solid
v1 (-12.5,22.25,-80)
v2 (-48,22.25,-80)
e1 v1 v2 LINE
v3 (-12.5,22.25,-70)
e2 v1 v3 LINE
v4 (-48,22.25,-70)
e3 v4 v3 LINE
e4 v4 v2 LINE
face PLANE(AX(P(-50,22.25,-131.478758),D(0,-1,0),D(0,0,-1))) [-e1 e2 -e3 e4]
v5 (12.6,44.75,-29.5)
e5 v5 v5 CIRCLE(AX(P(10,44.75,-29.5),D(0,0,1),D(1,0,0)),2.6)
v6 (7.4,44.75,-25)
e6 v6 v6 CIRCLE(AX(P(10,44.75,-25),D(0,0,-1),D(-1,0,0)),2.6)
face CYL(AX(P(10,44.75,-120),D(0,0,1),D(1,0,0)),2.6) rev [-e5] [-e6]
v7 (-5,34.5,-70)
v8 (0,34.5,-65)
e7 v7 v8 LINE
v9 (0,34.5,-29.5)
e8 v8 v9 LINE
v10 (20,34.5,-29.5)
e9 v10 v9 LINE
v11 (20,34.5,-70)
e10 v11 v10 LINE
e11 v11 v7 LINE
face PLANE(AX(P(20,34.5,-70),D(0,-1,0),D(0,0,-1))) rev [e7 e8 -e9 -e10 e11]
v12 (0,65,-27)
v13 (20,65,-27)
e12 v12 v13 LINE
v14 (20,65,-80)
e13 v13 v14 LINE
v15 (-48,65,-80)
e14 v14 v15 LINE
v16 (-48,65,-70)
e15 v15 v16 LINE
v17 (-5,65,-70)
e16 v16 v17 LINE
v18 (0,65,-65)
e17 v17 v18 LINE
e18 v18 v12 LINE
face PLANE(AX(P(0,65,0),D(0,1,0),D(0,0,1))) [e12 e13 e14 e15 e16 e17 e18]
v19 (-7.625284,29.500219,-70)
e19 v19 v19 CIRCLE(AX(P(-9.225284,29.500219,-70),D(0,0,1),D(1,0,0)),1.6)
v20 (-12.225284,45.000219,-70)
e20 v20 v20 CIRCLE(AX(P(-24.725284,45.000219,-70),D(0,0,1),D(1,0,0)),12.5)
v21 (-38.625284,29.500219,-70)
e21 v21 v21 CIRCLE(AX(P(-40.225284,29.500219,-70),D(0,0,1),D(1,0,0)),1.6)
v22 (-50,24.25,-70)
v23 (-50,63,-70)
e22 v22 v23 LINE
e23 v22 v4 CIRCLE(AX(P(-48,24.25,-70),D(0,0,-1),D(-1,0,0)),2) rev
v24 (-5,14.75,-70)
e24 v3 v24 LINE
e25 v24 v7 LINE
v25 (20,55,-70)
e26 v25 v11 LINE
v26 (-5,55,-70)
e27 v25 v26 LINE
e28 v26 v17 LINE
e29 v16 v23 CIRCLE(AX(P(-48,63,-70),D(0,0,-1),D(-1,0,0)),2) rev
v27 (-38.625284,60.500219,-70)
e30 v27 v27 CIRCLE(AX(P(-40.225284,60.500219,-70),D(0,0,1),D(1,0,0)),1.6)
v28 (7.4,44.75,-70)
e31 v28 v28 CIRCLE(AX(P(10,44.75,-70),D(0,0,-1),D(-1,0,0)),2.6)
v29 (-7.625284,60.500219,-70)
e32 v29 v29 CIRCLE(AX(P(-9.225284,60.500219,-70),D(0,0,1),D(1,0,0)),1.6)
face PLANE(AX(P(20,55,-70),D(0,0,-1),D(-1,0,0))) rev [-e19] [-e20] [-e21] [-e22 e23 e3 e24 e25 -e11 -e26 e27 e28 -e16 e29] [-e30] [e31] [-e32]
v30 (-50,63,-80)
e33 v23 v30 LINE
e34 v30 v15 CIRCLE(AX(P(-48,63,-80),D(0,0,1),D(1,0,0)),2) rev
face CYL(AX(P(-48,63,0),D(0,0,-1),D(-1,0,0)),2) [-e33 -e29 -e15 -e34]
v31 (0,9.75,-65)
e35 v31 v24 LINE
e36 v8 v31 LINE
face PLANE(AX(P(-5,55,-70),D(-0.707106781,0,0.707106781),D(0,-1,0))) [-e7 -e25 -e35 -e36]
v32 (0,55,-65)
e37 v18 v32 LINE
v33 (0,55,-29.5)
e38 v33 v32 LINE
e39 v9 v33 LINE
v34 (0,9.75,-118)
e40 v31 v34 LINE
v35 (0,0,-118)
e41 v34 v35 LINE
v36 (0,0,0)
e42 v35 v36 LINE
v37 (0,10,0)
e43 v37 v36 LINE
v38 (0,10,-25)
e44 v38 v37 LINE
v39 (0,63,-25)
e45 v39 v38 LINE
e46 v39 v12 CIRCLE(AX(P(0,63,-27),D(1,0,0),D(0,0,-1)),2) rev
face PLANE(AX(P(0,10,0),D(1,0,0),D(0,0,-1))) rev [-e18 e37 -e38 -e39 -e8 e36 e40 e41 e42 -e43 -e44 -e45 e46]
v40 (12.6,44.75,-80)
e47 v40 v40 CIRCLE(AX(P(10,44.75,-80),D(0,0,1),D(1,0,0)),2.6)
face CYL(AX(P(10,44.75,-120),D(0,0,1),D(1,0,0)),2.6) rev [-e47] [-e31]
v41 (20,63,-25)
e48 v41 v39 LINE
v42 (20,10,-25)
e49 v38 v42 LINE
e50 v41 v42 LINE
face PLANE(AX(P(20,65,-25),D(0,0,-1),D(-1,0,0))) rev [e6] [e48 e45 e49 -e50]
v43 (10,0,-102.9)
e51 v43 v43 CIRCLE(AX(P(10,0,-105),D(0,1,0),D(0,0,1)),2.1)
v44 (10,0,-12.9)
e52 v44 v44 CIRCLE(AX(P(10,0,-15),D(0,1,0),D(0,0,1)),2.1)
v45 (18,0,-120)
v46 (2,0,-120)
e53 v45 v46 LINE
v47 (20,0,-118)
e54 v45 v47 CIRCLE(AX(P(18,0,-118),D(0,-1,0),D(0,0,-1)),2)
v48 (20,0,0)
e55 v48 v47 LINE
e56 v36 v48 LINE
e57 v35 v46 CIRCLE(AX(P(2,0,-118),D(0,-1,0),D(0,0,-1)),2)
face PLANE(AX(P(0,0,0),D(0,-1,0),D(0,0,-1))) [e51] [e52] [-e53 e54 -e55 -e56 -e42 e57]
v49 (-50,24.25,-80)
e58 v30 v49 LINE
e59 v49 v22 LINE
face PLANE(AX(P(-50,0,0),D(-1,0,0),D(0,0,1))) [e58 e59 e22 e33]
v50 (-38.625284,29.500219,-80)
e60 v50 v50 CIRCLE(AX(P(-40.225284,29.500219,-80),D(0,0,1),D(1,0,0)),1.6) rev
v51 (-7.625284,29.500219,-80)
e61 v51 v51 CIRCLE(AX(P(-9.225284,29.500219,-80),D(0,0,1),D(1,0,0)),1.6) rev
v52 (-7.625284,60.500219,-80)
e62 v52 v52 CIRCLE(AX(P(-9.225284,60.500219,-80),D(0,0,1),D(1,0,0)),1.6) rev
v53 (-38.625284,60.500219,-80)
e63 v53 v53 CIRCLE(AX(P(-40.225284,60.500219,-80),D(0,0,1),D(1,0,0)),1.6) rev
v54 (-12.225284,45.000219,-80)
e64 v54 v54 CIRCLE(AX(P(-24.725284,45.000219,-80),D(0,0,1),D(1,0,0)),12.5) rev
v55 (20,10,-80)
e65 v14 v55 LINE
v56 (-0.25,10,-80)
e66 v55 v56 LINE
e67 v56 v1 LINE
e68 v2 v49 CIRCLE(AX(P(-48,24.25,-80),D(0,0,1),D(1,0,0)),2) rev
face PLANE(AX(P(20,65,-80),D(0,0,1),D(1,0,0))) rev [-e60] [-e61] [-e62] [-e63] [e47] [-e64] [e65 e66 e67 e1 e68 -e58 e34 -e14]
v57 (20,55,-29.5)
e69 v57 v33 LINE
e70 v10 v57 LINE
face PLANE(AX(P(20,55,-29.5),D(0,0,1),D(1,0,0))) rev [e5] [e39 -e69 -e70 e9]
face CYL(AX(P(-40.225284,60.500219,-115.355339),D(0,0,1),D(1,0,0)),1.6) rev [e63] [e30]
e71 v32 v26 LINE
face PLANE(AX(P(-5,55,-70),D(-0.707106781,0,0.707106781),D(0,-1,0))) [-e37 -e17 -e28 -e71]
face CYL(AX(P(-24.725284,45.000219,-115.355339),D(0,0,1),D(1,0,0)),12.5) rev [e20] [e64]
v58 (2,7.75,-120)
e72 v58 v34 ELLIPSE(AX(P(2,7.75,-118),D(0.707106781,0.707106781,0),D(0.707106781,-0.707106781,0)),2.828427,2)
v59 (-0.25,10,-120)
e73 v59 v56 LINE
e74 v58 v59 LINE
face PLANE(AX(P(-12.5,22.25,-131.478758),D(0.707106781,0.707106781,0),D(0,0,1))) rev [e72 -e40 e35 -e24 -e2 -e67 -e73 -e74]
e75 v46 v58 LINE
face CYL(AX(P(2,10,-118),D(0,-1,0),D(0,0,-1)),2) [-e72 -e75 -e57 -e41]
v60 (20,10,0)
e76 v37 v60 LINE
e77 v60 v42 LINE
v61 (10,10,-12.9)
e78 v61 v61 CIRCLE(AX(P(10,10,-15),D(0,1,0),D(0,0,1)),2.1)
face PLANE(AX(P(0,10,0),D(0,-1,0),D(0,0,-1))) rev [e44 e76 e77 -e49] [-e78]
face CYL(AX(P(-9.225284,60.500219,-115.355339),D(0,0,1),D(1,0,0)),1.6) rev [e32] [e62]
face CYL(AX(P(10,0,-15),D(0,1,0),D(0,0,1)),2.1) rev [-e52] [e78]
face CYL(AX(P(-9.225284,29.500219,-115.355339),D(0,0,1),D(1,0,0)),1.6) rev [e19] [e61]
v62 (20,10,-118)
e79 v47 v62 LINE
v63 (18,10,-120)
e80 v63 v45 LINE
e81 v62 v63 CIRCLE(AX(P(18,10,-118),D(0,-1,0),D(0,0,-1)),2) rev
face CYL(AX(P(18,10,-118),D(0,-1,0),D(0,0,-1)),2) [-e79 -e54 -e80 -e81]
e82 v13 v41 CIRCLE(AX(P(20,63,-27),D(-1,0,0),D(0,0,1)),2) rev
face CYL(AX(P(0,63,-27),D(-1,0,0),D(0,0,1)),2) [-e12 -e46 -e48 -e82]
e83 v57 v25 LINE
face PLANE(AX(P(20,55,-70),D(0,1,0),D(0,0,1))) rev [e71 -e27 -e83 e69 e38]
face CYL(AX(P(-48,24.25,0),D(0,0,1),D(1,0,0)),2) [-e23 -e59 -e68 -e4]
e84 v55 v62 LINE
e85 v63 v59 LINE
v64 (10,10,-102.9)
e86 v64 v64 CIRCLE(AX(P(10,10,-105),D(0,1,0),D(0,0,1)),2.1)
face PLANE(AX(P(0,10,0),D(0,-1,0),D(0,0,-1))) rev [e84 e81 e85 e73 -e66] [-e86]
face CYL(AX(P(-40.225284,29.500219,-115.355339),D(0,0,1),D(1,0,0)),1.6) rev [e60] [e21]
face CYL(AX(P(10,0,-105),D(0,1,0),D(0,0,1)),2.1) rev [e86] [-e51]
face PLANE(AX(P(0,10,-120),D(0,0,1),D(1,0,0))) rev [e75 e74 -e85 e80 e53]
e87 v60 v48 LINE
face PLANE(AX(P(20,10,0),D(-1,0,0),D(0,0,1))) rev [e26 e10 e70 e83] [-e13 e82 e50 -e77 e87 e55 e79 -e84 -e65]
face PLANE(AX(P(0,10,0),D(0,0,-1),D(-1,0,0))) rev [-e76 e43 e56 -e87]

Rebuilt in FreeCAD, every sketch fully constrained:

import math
import FreeCAD as App
import Part
import Sketcher

V = App.Vector


def edges_at(feature, points):
    """Names of the edges that pass closest to the given points."""
    edges = feature.Shape.Edges
    near = lambda p: min(range(len(edges)), key=lambda i: edges[i].distToShape(Part.Vertex(*p))[0])
    return sorted({f"Edge{near(p) + 1}" for p in points})


def add_polygon(sketch, points):
    """Adds a closed chain of lines whose ends are joined by coincident constraints."""
    first, n = sketch.GeometryCount, len(points)
    for a, b in zip(points, points[1:] + points[:1]):
        sketch.addGeometry(Part.LineSegment(App.Vector(*a, 0), App.Vector(*b, 0)), False)
    for i in range(n):
        sketch.addConstraint(Sketcher.Constraint("Coincident", first + i, 2, first + (i + 1) % n, 1))

doc = App.newDocument("Part")
body = doc.addObject("PartDesign::Body", "Body")

# Sketch on XZ plane
sketch1 = body.newObject("Sketcher::SketchObject", "Sketch")
sketch1.AttachmentSupport = (doc.getObject("XZ_Plane"), [""])
sketch1.MapMode = "FlatFace"
add_polygon(sketch1, [(0, -120), (0, 0), (20, 0), (20, -120)])  # lines 0-3
sketch1.addConstraint([
    Sketcher.Constraint("Vertical", 0),
    Sketcher.Constraint("Horizontal", 1),
    Sketcher.Constraint("Vertical", 2),
    Sketcher.Constraint("Horizontal", 3),
    Sketcher.Constraint("Coincident", 0, 2, -1, 1),
    Sketcher.Constraint("DistanceX", 1, 1, 1, 2, 20.0),
    Sketcher.Constraint("DistanceY", 0, 1, 0, 2, 120.0),
])
pad1 = body.newObject("PartDesign::Pad", "Pad")
pad1.Profile = sketch1
pad1.Length = 10
pad1.Reversed = True

# Sketch on XZ plane
sketch2 = body.newObject("Sketcher::SketchObject", "Sketch001")
sketch2.AttachmentSupport = (doc.getObject("XZ_Plane"), [""])
sketch2.MapMode = "FlatFace"
sketch2.AttachmentOffset = App.Placement(V(0, 0, -10), App.Rotation())
sketch2.addGeometry([
    Part.Circle(V(10, -105, 0), V(0, 0, 1), 2.1),
    Part.Circle(V(10, -15, 0), V(0, 0, 1), 2.1),
], False)
sketch2.addConstraint([
    Sketcher.Constraint("Equal", 0, 1),
    Sketcher.Constraint("Vertical", 0, 3, 1, 3),
    Sketcher.Constraint("Diameter", 0, 4.2),
    Sketcher.Constraint("DistanceX", -1, 1, 0, 3, 10.0),
    Sketcher.Constraint("DistanceY", 0, 3, -1, 1, 105.0),
    Sketcher.Constraint("DistanceY", 1, 3, -1, 1, 15.0),
])
pocket1 = body.newObject("PartDesign::Pocket", "Pocket")
pocket1.Profile = sketch2
pocket1.Length = 10
pocket1.Reversed = True

# Sketch on XZ plane
sketch3 = body.newObject("Sketcher::SketchObject", "Sketch002")
sketch3.AttachmentSupport = (doc.getObject("XZ_Plane"), [""])
sketch3.MapMode = "FlatFace"
sketch3.AttachmentOffset = App.Placement(V(0, 0, -10), App.Rotation())
add_polygon(sketch3, [(0, -80), (0, -25), (20, -25), (20, -80)])  # lines 0-3
sketch3.addConstraint([
    Sketcher.Constraint("Vertical", 0),
    Sketcher.Constraint("Horizontal", 1),
    Sketcher.Constraint("Vertical", 2),
    Sketcher.Constraint("Horizontal", 3),
    Sketcher.Constraint("PointOnObject", 0, 2, -2),
    Sketcher.Constraint("DistanceX", 1, 1, 1, 2, 20.0),
    Sketcher.Constraint("DistanceY", 0, 1, 0, 2, 55.0),
    Sketcher.Constraint("DistanceY", 0, 2, -1, 1, 25.0),
])
pad2 = body.newObject("PartDesign::Pad", "Pad001")
pad2.Profile = sketch3
pad2.Length = 55
pad2.Reversed = True

# Sketch on YZ plane
sketch4 = body.newObject("Sketcher::SketchObject", "Sketch003")
sketch4.AttachmentSupport = (doc.getObject("YZ_Plane"), [""])
sketch4.MapMode = "FlatFace"
add_polygon(sketch4, [(55, -70), (34, -70), (34, -30), (55, -30)])  # lines 0-3
sketch4.addConstraint([
    Sketcher.Constraint("Horizontal", 0),
    Sketcher.Constraint("Vertical", 1),
    Sketcher.Constraint("Horizontal", 2),
    Sketcher.Constraint("Vertical", 3),
    Sketcher.Constraint("DistanceX", 0, 2, 0, 1, 20.5),
    Sketcher.Constraint("DistanceY", 1, 1, 1, 2, 40.5),
    Sketcher.Constraint("DistanceY", 0, 2, -1, 1, 70.0),
    Sketcher.Constraint("DistanceX", -1, 1, 2, 2, 55.0),
])
pocket2 = body.newObject("PartDesign::Pocket", "Pocket001")
pocket2.Profile = sketch4
pocket2.Length = 20
pocket2.Reversed = True

# Sketch on XY plane
sketch5 = body.newObject("Sketcher::SketchObject", "Sketch004")
sketch5.AttachmentSupport = (doc.getObject("XY_Plane"), [""])
sketch5.MapMode = "FlatFace"
sketch5.AttachmentOffset = App.Placement(V(0, 0, -70), App.Rotation())
sketch5.addGeometry(Part.Circle(V(10, 44.8, 0), V(0, 0, 1), 2.6), False)
sketch5.addConstraint([
    Sketcher.Constraint("Diameter", 0, 5.2),
    Sketcher.Constraint("DistanceX", -1, 1, 0, 3, 10.0),
    Sketcher.Constraint("DistanceY", -1, 1, 0, 3, 44.75),
])
pocket3 = body.newObject("PartDesign::Pocket", "Pocket002")
pocket3.Profile = sketch5
pocket3.Length = 100
pocket3.Midplane = True

# Sketch on YZ plane
sketch6 = body.newObject("Sketcher::SketchObject", "Sketch005")
sketch6.AttachmentSupport = (doc.getObject("YZ_Plane"), [""])
sketch6.MapMode = "FlatFace"
add_polygon(sketch6, [(65, -80), (10, -80), (10, -70), (65, -70)])  # lines 0-3
sketch6.addConstraint([
    Sketcher.Constraint("Horizontal", 0),
    Sketcher.Constraint("Vertical", 1),
    Sketcher.Constraint("Horizontal", 2),
    Sketcher.Constraint("Vertical", 3),
    Sketcher.Constraint("DistanceX", 0, 2, 0, 1, 55.0),
    Sketcher.Constraint("DistanceY", 1, 1, 1, 2, 10.0),
    Sketcher.Constraint("DistanceX", -1, 1, 0, 2, 10.0),
    Sketcher.Constraint("DistanceY", 0, 2, -1, 1, 80.0),
])
pad3 = body.newObject("PartDesign::Pad", "Pad002")
pad3.Profile = sketch6
pad3.Length = 50
pad3.Reversed = True

# Sketch on XY plane
sketch7 = body.newObject("Sketcher::SketchObject", "Sketch006")
sketch7.AttachmentSupport = (doc.getObject("XY_Plane"), [""])
sketch7.MapMode = "FlatFace"
sketch7.AttachmentOffset = App.Placement(V(0, 0, -70), App.Rotation())
sketch7.addGeometry([
    Part.Circle(V(-24.7, 45, 0), V(0, 0, 1), 12.5),  # 0
    Part.ArcOfCircle(Part.Circle(V(-9.2, 60.5, 0), V(0, 0, 1), 1.6), math.radians(0), math.radians(180)),  # 1
    Part.ArcOfCircle(Part.Circle(V(-9.2, 60.5, 0), V(0, 0, 1), 1.6), math.radians(180), math.radians(270)),  # 2
    Part.ArcOfCircle(Part.Circle(V(-9.2, 60.5, 0), V(0, 0, 1), 1.6), math.radians(-90), math.radians(0)),  # 3
    Part.ArcOfCircle(Part.Circle(V(-9.2, 29.5, 0), V(0, 0, 1), 1.6), math.radians(0), math.radians(90)),  # 4
    Part.ArcOfCircle(Part.Circle(V(-9.2, 29.5, 0), V(0, 0, 1), 1.6), math.radians(90), math.radians(180)),  # 5
    Part.ArcOfCircle(Part.Circle(V(-9.2, 29.5, 0), V(0, 0, 1), 1.6), math.radians(180), math.radians(360)),  # 6
    Part.ArcOfCircle(Part.Circle(V(-40.2, 29.5, 0), V(0, 0, 1), 1.6), math.radians(0), math.radians(90)),  # 7
    Part.ArcOfCircle(Part.Circle(V(-40.2, 29.5, 0), V(0, 0, 1), 1.6), math.radians(90), math.radians(360)),  # 8
    Part.ArcOfCircle(Part.Circle(V(-40.2, 60.5, 0), V(0, 0, 1), 1.6), math.radians(0), math.radians(270)),  # 9
    Part.ArcOfCircle(Part.Circle(V(-40.2, 60.5, 0), V(0, 0, 1), 1.6), math.radians(-90), math.radians(0)),  # 10
], False)
sketch7.addConstraint([
    Sketcher.Constraint("Tangent", 1, 2, 2, 1),
    Sketcher.Constraint("Tangent", 2, 2, 3, 1),
    Sketcher.Constraint("Tangent", 3, 2, 1, 1),
    Sketcher.Constraint("Tangent", 4, 2, 5, 1),
    Sketcher.Constraint("Tangent", 5, 2, 6, 1),
    Sketcher.Constraint("Tangent", 6, 2, 4, 1),
    Sketcher.Constraint("Tangent", 7, 1, 8, 2),
    Sketcher.Constraint("Coincident", 8, 1, 7, 2),
    Sketcher.Constraint("Tangent", 9, 1, 10, 2),
    Sketcher.Constraint("Coincident", 10, 1, 9, 2),
    Sketcher.Constraint("Equal", 3, 4),
    Sketcher.Constraint("Equal", 6, 7),
    Sketcher.Constraint("Equal", 8, 9),
    Sketcher.Constraint("Horizontal", 6, 3, 7, 3),
    Sketcher.Constraint("Horizontal", 3, 3, 9, 3),
    Sketcher.Constraint("Horizontal", 10, 3, 1, 2),
    Sketcher.Constraint("Horizontal", 1, 2, 3, 2),
    Sketcher.Constraint("Horizontal", 8, 3, 5, 2),
    Sketcher.Constraint("Horizontal", 5, 2, 6, 2),
    Sketcher.Constraint("Horizontal", 6, 2, 7, 1),
    Sketcher.Constraint("Horizontal", 3, 2, 9, 1),
    Sketcher.Constraint("Vertical", 3, 3, 4, 3),
    Sketcher.Constraint("Vertical", 8, 3, 9, 3),
    Sketcher.Constraint("Vertical", 6, 3, 2, 2),
    Sketcher.Constraint("Vertical", 2, 2, 4, 2),
    Sketcher.Constraint("Vertical", 10, 3, 8, 1),
    Sketcher.Constraint("Vertical", 8, 1, 10, 1),
    Sketcher.Constraint("Diameter", 0, 25.0),
    Sketcher.Constraint("Radius", 1, 1.6),
    Sketcher.Constraint("DistanceY", 4, 3, 1, 3, 31.0),
    Sketcher.Constraint("DistanceX", 7, 3, 4, 3, 31.0),
    Sketcher.Constraint("DistanceX", 0, 3, 1, 3, 15.5),
    Sketcher.Constraint("DistanceY", 0, 3, 1, 3, 15.5),
    Sketcher.Constraint("DistanceY", -1, 1, 0, 3, 45.000219),
    Sketcher.Constraint("DistanceX", 0, 3, -1, 1, 24.725284),
])
pocket4 = body.newObject("PartDesign::Pocket", "Pocket003")
pocket4.Profile = sketch7
pocket4.Length = 10

# Sketch on XY plane
sketch8 = body.newObject("Sketcher::SketchObject", "Sketch007")
sketch8.AttachmentSupport = (doc.getObject("XY_Plane"), [""])
sketch8.MapMode = "FlatFace"
sketch8.AttachmentOffset = App.Placement(V(0, 0, -70), App.Rotation())
add_polygon(sketch8, [(-50, 22), (-50, 10), (0, 10), (0, 22)])  # lines 0-3
sketch8.addConstraint([
    Sketcher.Constraint("Vertical", 0),
    Sketcher.Constraint("Horizontal", 1),
    Sketcher.Constraint("Vertical", 2),
    Sketcher.Constraint("Horizontal", 3),
    Sketcher.Constraint("PointOnObject", 1, 2, -2),
    Sketcher.Constraint("DistanceX", 1, 1, 1, 2, 50.0),
    Sketcher.Constraint("DistanceY", -1, 1, 0, 2, 10.0),
    Sketcher.Constraint("DistanceY", 0, 2, 0, 1, 12.25),
])
pocket5 = body.newObject("PartDesign::Pocket", "Pocket004")
pocket5.Profile = sketch8
pocket5.Length = 10
doc.recompute()

chamfer = body.newObject("PartDesign::Chamfer", "Chamfer")
chamfer.Base = (pocket5, edges_at(pocket5, [(0, 22.25, -75)]))
chamfer.Size = 12.5
doc.recompute()

fillet = body.newObject("PartDesign::Fillet", "Fillet")
fillet.Base = (chamfer, edges_at(chamfer, [
    (-50, 22.25, -75),
    (0, 4.875, -120),
    (10, 65, -25),
    (-50, 65, -75),
    (20, 5, -120),
]))
fillet.Radius = 2
doc.recompute()

chamfer2 = body.newObject("PartDesign::Chamfer", "Chamfer001")
chamfer2.Base = (fillet, edges_at(fillet, [(0, 22.125, -70), (0, 60, -70)]))
chamfer2.Size = 5

doc.recompute()
